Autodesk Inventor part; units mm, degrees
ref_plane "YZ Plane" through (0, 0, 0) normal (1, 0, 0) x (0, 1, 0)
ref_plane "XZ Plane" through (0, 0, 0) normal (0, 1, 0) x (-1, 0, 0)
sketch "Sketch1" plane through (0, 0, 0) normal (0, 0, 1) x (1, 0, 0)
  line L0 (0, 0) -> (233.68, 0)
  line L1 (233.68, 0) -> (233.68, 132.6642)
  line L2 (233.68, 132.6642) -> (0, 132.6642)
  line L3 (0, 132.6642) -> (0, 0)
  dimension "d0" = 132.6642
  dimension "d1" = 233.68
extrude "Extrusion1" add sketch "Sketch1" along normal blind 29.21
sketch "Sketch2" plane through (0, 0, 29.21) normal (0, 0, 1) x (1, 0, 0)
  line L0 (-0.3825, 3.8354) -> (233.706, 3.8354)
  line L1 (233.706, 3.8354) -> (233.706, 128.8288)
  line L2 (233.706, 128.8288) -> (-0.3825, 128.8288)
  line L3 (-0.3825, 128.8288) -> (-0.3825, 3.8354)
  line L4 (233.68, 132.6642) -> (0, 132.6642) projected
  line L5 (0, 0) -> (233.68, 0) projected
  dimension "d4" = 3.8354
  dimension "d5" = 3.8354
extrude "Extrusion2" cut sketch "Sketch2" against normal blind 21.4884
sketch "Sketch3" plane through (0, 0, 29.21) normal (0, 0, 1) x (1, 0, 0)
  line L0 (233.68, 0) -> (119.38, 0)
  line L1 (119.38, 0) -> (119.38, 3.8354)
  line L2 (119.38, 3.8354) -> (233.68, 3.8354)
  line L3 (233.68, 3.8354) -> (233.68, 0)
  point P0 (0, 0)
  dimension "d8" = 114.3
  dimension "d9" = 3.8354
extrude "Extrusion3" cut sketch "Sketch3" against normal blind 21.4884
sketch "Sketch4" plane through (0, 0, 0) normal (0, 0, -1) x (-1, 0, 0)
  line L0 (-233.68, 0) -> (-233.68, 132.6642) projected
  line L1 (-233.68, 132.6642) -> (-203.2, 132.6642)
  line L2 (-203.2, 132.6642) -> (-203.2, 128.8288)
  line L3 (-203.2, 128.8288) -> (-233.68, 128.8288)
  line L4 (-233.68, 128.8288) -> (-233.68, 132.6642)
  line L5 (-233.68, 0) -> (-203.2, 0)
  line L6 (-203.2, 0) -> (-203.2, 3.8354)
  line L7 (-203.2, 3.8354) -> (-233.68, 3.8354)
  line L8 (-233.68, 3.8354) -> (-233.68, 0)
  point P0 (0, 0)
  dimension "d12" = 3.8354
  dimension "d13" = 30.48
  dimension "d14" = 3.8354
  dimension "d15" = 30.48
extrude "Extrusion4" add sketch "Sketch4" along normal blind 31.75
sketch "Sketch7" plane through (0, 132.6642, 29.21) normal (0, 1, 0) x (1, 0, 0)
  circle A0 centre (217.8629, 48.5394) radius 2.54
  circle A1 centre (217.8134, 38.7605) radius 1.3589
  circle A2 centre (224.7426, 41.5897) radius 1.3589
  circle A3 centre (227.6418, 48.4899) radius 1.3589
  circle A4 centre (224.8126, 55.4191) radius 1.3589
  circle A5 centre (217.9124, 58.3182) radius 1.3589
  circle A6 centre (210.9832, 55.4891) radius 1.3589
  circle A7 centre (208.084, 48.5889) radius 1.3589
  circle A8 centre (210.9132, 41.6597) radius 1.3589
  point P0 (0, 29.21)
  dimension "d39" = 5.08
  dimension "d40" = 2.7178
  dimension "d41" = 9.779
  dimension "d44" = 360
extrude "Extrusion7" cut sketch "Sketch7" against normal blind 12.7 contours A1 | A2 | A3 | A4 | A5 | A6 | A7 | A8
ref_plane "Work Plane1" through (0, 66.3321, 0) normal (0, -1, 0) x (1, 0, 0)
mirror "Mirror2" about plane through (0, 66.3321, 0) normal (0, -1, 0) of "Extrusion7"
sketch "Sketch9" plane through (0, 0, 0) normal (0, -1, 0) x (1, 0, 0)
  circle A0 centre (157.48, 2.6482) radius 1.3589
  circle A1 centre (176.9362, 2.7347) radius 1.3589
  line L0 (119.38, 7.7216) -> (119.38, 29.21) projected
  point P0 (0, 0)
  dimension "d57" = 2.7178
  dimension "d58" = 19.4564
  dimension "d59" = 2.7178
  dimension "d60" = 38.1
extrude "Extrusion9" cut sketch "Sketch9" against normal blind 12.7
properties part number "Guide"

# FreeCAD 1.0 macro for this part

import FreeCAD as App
import Part
import Sketcher
from FreeCAD import Vector
Q = App.Units.Quantity


def add_polygon(sketch, points):
    """Adds a closed chain of lines whose ends are joined by coincident constraints."""
    first, n = sketch.GeometryCount, len(points)
    for a, b in zip(points, points[1:] + points[:1]):
        sketch.addGeometry(Part.LineSegment(App.Vector(*a, 0), App.Vector(*b, 0)), False)
    for i in range(n):
        sketch.addConstraint(Sketcher.Constraint("Coincident", first + i, 2, first + (i + 1) % n, 1))

doc = App.newDocument("Part")
body = doc.addObject("PartDesign::Body", "Body")

sketch1 = body.newObject("Sketcher::SketchObject", "Sketch")
sketch1.AttachmentSupport = (doc.getObject("XY_Plane"), [""])
sketch1.MapMode = "FlatFace"
add_polygon(sketch1, [(0, 133), (0, 0), (234, 0), (234, 133)])
sketch1.addConstraint([
    Sketcher.Constraint("Vertical", 0),
    Sketcher.Constraint("Horizontal", 1),
    Sketcher.Constraint("Vertical", 2),
    Sketcher.Constraint("Horizontal", 3),
    Sketcher.Constraint("Coincident", 0, 2, -1, 1),
    Sketcher.Constraint("DistanceX", 1, 1, 1, 2, Q("9.2 in")),
    Sketcher.Constraint("DistanceY", 0, 2, 0, 1, Q("5.223 in")),
])
pad1 = body.newObject("PartDesign::Pad", "Pad")
pad1.Profile = sketch1
pad1.Length = Q("1.15 in")

sketch2 = body.newObject("Sketcher::SketchObject", "Sketch001")
sketch2.AttachmentSupport = (doc.getObject("XY_Plane"), [""])
sketch2.MapMode = "FlatFace"
sketch2.AttachmentOffset = App.Placement(Vector(0, 0, 1.15 * 25.4), App.Rotation())
add_polygon(sketch2, [(0, 129), (0, 4), (234, 4), (234, 129)])
sketch2.addConstraint([
    Sketcher.Constraint("Vertical", 0),
    Sketcher.Constraint("Horizontal", 1),
    Sketcher.Constraint("Vertical", 2),
    Sketcher.Constraint("Horizontal", 3),
    Sketcher.Constraint("DistanceY", -1, 1, 0, 2, Q("0.151 in")),
    Sketcher.Constraint("DistanceY", 0, 2, 0, 1, Q("4.921 in")),
    Sketcher.Constraint("DistanceX", 1, 1, 1, 2, 234.0885),
    Sketcher.Constraint("DistanceX", 0, 2, -1, 1, 0.3825),
])
pocket1 = body.newObject("PartDesign::Pocket", "Pocket")
pocket1.Profile = sketch2
pocket1.Length = Q("0.846 in")

sketch3 = body.newObject("Sketcher::SketchObject", "Sketch002")
sketch3.AttachmentSupport = (doc.getObject("XY_Plane"), [""])
sketch3.MapMode = "FlatFace"
sketch3.AttachmentOffset = App.Placement(Vector(0, 0, 1.15 * 25.4), App.Rotation())
add_polygon(sketch3, [(119.4, 0), (233.7, 0), (233.7, 3.8), (119.4, 3.8)])
sketch3.addConstraint([
    Sketcher.Constraint("Horizontal", 0),
    Sketcher.Constraint("Vertical", 1),
    Sketcher.Constraint("Horizontal", 2),
    Sketcher.Constraint("Vertical", 3),
    Sketcher.Constraint("PointOnObject", 0, 2, -1),
    Sketcher.Constraint("DistanceX", 0, 1, 0, 2, Q("4.5 in")),
    Sketcher.Constraint("DistanceY", 1, 1, 1, 2, Q("0.151 in")),
    Sketcher.Constraint("DistanceX", -1, 1, 0, 2, Q("9.2 in")),
])
pocket2 = body.newObject("PartDesign::Pocket", "Pocket001")
pocket2.Profile = sketch3
pocket2.Length = Q("0.846 in")

sketch4 = body.newObject("Sketcher::SketchObject", "Sketch003")
sketch4.AttachmentSupport = (doc.getObject("XY_Plane"), [""])
sketch4.MapMode = "FlatFace"
add_polygon(sketch4, [(233.7, 132.7), (233.7, 128.8), (203.2, 128.8), (203.2, 132.7)])
add_polygon(sketch4, [(233.7, 3.8), (233.7, 0), (203.2, 0), (203.2, 3.8)])
sketch4.addConstraint([
    Sketcher.Constraint("Vertical", 0),
    Sketcher.Constraint("Horizontal", 1),
    Sketcher.Constraint("Vertical", 2),
    Sketcher.Constraint("Horizontal", 3),
    Sketcher.Constraint("Vertical", 4),
    Sketcher.Constraint("Horizontal", 5),
    Sketcher.Constraint("Vertical", 6),
    Sketcher.Constraint("Horizontal", 7),
    Sketcher.Constraint("PointOnObject", 4, 2, -1),
    Sketcher.Constraint("Vertical", 3, 2, 4, 2),
    Sketcher.Constraint("Vertical", 2, 2, 5, 2),
    Sketcher.Constraint("Equal", 2, 4),
    Sketcher.Constraint("DistanceX", 1, 2, 1, 1, Q("1.2 in")),
    Sketcher.Constraint("DistanceY", 0, 2, 0, 1, Q("0.151 in")),
    Sketcher.Constraint("DistanceX", -1, 1, 1, 2, Q("8 in")),
    Sketcher.Constraint("DistanceY", -1, 1, 0, 2, Q("5.072 in")),
])
pad2 = body.newObject("PartDesign::Pad", "Pad001")
pad2.Profile = sketch4
pad2.Length = Q("1.25 in")
pad2.Reversed = True

sketch5 = body.newObject("Sketcher::SketchObject", "Sketch004")
sketch5.AttachmentSupport = (doc.getObject("XZ_Plane"), [""])
sketch5.MapMode = "FlatFace"
sketch5.AttachmentOffset = App.Placement(Vector(0, 0, -5.223 * 25.4), App.Rotation())
sketch5.addGeometry([
    Part.Circle(Vector(217.8, -9.6, 0), Vector(0, 0, 1), 1.4),
    Part.Circle(Vector(224.7, -12.4, 0), Vector(0, 0, 1), 1.4),
    Part.Circle(Vector(227.6, -19.3, 0), Vector(0, 0, 1), 1.4),
    Part.Circle(Vector(224.8, -26.2, 0), Vector(0, 0, 1), 1.4),
    Part.Circle(Vector(217.9, -29.1, 0), Vector(0, 0, 1), 1.4),
    Part.Circle(Vector(211, -26.3, 0), Vector(0, 0, 1), 1.4),
    Part.Circle(Vector(208.1, -19.4, 0), Vector(0, 0, 1), 1.4),
    Part.Circle(Vector(210.9, -12.4, 0), Vector(0, 0, 1), 1.4),
], False)
sketch5.addConstraint([
    Sketcher.Constraint("Equal", 0, 1),
    Sketcher.Constraint("Equal", 1, 2),
    Sketcher.Constraint("Equal", 2, 3),
    Sketcher.Constraint("Equal", 3, 4),
    Sketcher.Constraint("Equal", 4, 5),
    Sketcher.Constraint("Equal", 5, 6),
    Sketcher.Constraint("Equal", 6, 7),
    Sketcher.Constraint("Diameter", 0, Q("0.107 in")),
    Sketcher.Constraint("DistanceY", 4, 3, 0, 3, Q("0.77 in")),
    Sketcher.Constraint("DistanceY", 0, 3, -1, 1, Q("0.376 in")),
    Sketcher.Constraint("DistanceY", 1, 3, -1, 1, Q("0.4874 in")),
    Sketcher.Constraint("DistanceX", -1, 1, 3, 3, Q("8.8509 in")),
    Sketcher.Constraint("DistanceY", 5, 3, -1, 1, Q("1.0346 in")),
    Sketcher.Constraint("DistanceX", 0, 3, 1, 3, Q("0.2728 in")),
    Sketcher.Constraint("DistanceY", 3, 3, 2, 3, Q("0.2728 in")),
    Sketcher.Constraint("DistanceX", 4, 3, 1, 3, Q("0.2689 in")),
    Sketcher.Constraint("DistanceX", 5, 3, 4, 3, Q("0.2728 in")),
    Sketcher.Constraint("DistanceX", 6, 3, 3, 3, Q("0.6586 in")),
    Sketcher.Constraint("DistanceY", 3, 3, 6, 3, Q("0.2689 in")),
    Sketcher.Constraint("DistanceY", 6, 3, 7, 3, Q("0.2728 in")),
    Sketcher.Constraint("DistanceX", -1, 1, 0, 3, 217.8134),
    Sketcher.Constraint("DistanceX", -1, 1, 2, 3, 227.6418),
    Sketcher.Constraint("DistanceY", 2, 3, -1, 1, 19.28),
    Sketcher.Constraint("DistanceX", -1, 1, 7, 3, 210.9132),
])
pocket3 = body.newObject("PartDesign::Pocket", "Pocket002")
pocket3.Profile = sketch5
pocket3.Length = Q("0.5 in")
pocket3.Reversed = True
doc.recompute()

datumplane = body.newObject("PartDesign::Plane", "DatumPlane")
datumplane.AttachmentSupport = (doc.getObject("XZ_Plane"), [""])
datumplane.MapMode = "FlatFace"
datumplane.AttachmentOffset = App.Placement(Vector(0, 0, -2.6115 * 25.4), App.Rotation())
mirrored = body.newObject("PartDesign::Mirrored", "Mirrored")
mirrored.Originals = [pocket3]
mirrored.MirrorPlane = (datumplane, [""])
body.Tip = mirrored

sketch6 = body.newObject("Sketcher::SketchObject", "Sketch005")
sketch6.AttachmentSupport = (doc.getObject("XZ_Plane"), [""])
sketch6.MapMode = "FlatFace"
sketch6.addGeometry([
    Part.Circle(Vector(157.5, 2.6, 0), Vector(0, 0, 1), 1.4),
    Part.Circle(Vector(176.9, 2.7, 0), Vector(0, 0, 1), 1.4),
], False)
sketch6.addConstraint([
    Sketcher.Constraint("Equal", 0, 1),
    Sketcher.Constraint("Diameter", 0, Q("0.107 in")),
    Sketcher.Constraint("DistanceX", 0, 3, 1, 3, Q("0.766 in")),
    Sketcher.Constraint("DistanceX", -1, 1, 0, 3, Q("6.2 in")),
    Sketcher.Constraint("DistanceY", 0, 3, 1, 3, Q("0.0034 in")),
    Sketcher.Constraint("DistanceY", -1, 1, 0, 3, 2.6482),
])
pocket4 = body.newObject("PartDesign::Pocket", "Pocket003")
pocket4.Profile = sketch6
pocket4.Length = Q("0.5 in")

doc.recompute()
